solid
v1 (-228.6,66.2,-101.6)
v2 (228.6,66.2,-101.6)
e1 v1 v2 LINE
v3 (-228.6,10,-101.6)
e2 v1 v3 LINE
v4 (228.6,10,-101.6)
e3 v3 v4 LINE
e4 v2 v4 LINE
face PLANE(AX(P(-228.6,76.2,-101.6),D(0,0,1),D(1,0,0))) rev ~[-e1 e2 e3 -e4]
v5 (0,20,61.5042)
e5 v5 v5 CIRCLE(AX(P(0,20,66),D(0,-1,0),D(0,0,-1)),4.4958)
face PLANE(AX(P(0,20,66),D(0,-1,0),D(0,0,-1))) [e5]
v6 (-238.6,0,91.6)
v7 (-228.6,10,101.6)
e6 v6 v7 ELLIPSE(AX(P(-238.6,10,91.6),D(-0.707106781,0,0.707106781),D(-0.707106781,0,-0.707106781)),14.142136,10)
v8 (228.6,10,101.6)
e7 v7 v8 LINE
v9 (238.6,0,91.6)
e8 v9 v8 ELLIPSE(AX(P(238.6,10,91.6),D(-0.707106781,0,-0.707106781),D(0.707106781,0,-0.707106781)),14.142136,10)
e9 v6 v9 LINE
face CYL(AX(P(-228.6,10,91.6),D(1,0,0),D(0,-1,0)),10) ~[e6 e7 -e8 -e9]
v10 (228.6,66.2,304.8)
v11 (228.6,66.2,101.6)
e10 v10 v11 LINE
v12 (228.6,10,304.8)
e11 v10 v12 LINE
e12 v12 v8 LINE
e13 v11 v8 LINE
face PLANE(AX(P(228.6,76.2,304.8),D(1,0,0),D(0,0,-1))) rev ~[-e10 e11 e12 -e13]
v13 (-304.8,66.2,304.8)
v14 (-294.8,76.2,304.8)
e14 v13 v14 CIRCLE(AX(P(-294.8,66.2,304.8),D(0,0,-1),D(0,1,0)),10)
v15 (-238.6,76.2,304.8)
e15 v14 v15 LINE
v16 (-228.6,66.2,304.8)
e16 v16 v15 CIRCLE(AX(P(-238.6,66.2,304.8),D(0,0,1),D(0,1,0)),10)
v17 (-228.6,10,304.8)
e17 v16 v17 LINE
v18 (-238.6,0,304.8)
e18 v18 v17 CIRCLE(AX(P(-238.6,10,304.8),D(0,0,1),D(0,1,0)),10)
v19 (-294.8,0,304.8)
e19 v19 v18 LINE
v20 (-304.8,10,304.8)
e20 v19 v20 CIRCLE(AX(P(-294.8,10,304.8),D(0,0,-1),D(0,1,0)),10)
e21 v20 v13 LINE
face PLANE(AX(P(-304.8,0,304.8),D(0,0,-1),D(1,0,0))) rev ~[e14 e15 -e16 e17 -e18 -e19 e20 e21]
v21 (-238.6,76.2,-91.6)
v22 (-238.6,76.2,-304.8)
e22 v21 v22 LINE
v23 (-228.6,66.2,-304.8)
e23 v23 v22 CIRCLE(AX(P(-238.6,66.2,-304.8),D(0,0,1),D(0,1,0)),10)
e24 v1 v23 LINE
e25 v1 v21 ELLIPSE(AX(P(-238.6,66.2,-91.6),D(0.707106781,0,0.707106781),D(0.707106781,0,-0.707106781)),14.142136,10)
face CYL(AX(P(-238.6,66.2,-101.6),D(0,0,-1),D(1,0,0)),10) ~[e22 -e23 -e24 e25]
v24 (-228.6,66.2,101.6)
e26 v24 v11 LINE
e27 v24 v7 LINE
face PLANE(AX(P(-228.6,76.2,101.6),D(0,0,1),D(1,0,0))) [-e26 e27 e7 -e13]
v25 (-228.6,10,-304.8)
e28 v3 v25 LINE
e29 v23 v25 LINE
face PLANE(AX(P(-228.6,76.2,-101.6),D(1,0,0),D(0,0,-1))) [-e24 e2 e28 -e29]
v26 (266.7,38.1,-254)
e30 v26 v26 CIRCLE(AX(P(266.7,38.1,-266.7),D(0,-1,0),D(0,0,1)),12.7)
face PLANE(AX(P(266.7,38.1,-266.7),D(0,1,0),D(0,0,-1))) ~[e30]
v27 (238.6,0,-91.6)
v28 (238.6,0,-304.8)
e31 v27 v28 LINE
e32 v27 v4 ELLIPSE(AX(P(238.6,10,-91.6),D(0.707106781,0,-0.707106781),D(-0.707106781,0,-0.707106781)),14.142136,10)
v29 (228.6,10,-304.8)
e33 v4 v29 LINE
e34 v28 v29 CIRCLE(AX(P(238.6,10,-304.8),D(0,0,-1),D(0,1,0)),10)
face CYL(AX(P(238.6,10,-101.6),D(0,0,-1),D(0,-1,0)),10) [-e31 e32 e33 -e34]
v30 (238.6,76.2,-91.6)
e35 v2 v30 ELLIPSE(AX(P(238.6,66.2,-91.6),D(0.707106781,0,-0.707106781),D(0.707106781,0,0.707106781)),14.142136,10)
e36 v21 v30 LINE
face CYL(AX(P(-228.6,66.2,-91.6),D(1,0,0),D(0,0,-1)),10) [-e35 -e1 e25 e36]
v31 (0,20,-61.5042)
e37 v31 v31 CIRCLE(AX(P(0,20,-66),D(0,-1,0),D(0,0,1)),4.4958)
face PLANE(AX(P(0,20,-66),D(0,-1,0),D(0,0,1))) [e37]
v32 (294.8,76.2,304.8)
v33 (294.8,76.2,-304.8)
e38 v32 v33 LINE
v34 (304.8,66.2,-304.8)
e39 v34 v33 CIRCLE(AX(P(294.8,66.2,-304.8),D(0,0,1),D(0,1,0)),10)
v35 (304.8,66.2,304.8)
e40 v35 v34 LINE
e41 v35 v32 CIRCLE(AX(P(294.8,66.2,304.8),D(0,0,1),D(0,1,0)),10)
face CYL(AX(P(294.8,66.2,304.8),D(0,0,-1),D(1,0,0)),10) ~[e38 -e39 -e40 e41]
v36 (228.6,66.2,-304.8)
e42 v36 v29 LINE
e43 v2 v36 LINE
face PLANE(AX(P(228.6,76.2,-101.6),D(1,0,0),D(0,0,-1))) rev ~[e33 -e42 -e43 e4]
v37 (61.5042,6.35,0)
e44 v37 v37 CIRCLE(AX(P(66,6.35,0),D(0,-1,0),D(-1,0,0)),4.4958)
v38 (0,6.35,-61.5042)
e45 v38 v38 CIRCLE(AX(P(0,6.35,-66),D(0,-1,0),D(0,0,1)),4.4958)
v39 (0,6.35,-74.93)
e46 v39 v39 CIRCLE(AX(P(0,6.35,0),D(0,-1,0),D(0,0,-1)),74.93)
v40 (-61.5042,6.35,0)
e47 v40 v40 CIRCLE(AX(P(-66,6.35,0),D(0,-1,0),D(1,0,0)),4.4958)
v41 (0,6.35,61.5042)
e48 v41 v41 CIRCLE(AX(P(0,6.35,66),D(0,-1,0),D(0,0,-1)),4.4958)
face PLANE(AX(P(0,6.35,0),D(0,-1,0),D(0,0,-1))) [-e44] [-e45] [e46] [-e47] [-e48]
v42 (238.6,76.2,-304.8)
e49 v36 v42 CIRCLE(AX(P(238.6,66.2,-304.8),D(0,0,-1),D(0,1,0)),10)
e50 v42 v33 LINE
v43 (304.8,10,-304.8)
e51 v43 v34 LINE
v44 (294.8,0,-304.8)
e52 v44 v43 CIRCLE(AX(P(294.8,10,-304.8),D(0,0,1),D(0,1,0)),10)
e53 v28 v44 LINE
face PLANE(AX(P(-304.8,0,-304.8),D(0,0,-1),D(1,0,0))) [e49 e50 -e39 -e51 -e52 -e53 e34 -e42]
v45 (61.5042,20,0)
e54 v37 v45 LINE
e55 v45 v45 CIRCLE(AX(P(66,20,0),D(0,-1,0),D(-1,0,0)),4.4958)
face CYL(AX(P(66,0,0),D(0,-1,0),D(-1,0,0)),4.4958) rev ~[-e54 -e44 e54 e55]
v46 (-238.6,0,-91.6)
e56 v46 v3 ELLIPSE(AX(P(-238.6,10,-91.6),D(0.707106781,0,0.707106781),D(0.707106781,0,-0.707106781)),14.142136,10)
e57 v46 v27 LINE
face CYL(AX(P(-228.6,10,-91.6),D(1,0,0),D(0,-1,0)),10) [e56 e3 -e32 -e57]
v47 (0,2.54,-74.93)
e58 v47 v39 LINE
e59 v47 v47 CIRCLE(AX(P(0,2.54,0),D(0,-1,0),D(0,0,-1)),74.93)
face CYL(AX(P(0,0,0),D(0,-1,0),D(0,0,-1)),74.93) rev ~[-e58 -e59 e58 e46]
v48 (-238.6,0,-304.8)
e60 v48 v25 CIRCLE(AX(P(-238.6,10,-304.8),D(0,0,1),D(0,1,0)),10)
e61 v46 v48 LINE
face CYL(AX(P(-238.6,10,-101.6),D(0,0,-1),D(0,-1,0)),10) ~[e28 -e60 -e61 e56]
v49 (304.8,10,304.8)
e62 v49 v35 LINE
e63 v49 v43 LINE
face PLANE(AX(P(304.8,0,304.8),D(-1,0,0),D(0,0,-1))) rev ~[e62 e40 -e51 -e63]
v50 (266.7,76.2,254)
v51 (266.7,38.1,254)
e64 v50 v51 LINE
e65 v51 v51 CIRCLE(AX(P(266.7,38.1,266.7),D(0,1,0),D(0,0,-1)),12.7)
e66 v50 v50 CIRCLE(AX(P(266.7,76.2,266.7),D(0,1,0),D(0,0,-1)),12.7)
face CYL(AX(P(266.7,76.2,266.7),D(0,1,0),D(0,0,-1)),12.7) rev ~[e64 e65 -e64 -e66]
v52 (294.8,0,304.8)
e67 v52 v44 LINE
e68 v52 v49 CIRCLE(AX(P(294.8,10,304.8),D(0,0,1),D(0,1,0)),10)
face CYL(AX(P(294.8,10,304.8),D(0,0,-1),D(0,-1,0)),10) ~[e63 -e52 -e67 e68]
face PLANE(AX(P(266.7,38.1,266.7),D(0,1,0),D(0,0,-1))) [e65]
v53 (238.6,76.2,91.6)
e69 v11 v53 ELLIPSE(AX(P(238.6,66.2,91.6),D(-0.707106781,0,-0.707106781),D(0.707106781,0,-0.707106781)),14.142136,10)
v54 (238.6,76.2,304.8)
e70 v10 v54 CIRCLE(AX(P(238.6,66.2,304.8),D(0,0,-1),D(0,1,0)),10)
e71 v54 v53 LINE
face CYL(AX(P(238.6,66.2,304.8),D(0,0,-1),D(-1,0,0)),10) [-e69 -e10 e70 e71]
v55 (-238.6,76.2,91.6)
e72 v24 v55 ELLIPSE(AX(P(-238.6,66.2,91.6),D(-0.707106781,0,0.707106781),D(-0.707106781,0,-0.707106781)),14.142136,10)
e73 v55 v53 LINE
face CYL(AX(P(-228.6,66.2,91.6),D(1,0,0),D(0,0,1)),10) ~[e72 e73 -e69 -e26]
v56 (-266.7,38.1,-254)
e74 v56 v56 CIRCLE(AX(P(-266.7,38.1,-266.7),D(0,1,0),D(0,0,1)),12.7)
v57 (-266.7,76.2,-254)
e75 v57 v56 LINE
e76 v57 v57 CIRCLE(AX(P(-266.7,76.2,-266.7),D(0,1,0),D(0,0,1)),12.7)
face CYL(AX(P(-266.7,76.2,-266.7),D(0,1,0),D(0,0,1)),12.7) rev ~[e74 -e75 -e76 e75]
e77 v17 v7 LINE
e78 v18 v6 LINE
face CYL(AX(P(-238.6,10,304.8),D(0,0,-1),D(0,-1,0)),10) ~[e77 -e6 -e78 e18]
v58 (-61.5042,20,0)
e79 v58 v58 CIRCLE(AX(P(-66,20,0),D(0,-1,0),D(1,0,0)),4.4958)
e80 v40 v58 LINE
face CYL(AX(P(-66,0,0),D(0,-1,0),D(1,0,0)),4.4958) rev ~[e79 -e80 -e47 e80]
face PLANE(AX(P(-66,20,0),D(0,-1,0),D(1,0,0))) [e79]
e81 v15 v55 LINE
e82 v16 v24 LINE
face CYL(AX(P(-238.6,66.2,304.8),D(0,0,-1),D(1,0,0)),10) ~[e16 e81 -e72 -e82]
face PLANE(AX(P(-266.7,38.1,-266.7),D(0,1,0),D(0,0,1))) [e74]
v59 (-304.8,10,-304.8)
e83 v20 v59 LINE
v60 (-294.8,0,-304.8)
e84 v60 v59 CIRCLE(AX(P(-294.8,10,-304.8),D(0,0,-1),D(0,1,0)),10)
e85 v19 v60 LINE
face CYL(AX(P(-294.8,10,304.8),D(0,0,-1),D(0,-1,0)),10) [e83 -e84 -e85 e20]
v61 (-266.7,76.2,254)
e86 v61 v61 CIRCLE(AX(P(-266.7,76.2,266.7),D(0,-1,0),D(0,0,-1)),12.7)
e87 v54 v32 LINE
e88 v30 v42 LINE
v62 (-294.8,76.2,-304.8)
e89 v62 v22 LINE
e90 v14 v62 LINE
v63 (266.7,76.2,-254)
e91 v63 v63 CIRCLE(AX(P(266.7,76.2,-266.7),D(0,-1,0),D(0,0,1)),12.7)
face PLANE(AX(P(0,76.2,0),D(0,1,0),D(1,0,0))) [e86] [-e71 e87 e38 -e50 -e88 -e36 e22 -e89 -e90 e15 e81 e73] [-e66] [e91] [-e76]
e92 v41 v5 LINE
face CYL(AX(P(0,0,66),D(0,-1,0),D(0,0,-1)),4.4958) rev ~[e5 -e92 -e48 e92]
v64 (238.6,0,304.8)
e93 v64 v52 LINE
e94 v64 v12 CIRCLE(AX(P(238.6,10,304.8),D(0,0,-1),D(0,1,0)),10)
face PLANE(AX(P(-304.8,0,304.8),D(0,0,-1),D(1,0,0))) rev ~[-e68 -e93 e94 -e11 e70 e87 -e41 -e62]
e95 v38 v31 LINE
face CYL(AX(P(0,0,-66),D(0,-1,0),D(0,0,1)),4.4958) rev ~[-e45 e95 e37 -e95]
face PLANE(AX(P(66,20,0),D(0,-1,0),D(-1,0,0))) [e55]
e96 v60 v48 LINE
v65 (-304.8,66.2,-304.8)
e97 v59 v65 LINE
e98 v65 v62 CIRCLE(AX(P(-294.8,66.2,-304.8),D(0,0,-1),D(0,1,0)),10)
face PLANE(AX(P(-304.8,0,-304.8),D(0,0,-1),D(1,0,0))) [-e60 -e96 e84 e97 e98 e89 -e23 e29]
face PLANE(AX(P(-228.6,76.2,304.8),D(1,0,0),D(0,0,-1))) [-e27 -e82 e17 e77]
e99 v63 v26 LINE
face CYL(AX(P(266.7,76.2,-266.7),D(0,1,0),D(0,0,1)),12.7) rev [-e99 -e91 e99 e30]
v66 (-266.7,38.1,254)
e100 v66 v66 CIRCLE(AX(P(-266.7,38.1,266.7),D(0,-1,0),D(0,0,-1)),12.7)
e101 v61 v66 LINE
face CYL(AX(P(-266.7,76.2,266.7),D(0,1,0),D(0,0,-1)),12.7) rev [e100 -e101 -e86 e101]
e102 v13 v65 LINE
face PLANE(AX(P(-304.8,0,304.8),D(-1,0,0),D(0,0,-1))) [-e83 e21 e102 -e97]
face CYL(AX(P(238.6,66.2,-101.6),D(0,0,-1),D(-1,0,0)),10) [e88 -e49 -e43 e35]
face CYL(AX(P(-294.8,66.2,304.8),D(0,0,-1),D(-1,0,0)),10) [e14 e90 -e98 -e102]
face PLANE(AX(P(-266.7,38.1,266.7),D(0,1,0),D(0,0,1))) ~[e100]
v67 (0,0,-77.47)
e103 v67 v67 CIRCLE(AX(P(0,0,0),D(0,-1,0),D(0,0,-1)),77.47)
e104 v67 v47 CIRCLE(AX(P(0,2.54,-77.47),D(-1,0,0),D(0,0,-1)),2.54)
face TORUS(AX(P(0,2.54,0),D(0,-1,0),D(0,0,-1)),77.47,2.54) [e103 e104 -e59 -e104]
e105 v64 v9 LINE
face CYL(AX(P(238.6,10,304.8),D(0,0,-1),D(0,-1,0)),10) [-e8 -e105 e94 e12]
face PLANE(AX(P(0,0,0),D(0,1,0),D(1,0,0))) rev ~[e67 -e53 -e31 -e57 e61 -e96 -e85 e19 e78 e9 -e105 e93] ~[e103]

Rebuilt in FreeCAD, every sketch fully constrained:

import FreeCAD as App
import Part
import Sketcher
from FreeCAD import Vector
Q = App.Units.Quantity


def edges_at(feature, points):
    """Names of the edges that pass closest to the given points."""
    edges = feature.Shape.Edges
    near = lambda p: min(range(len(edges)), key=lambda i: edges[i].distToShape(Part.Vertex(*p))[0])
    return sorted({f"Edge{near(p) + 1}" for p in points})


def add_polygon(sketch, points):
    """Adds a closed chain of lines whose ends are joined by coincident constraints."""
    first, n = sketch.GeometryCount, len(points)
    for a, b in zip(points, points[1:] + points[:1]):
        sketch.addGeometry(Part.LineSegment(App.Vector(*a, 0), App.Vector(*b, 0)), False)
    for i in range(n):
        sketch.addConstraint(Sketcher.Constraint("Coincident", first + i, 2, first + (i + 1) % n, 1))

doc = App.newDocument("Part")
body = doc.addObject("PartDesign::Body", "Body")

# Sketch on XZ plane
sketch1 = body.newObject("Sketcher::SketchObject", "Sketch")
sketch1.AttachmentSupport = (doc.getObject("XZ_Plane"), [""])
sketch1.MapMode = "FlatFace"
add_polygon(sketch1, [(-304.8, -304.8), (-304.8, 304.8), (304.8, 304.8), (304.8, -304.8)])  # lines 0-3
sketch1.addConstraint([
    Sketcher.Constraint("Vertical", 0),
    Sketcher.Constraint("Horizontal", 1),
    Sketcher.Constraint("Vertical", 2),
    Sketcher.Constraint("Horizontal", 3),
    Sketcher.Constraint("Symmetric", 0, 2, 2, 2, -1, 1),
    Sketcher.Constraint("Equal", 3, 0),
    Sketcher.Constraint("DistanceX", 1, 1, 1, 2, Q("24 in")),
])
pad1 = body.newObject("PartDesign::Pad", "Pad")
pad1.Profile = sketch1
pad1.Length = Q("3 in")
pad1.Reversed = True

# Sketch on XZ plane
sketch2 = body.newObject("Sketcher::SketchObject", "Sketch001")
sketch2.AttachmentSupport = (doc.getObject("XZ_Plane"), [""])
sketch2.MapMode = "FlatFace"
sketch2.AttachmentOffset = App.Placement(Vector(0, 0, -3 * 25.4), App.Rotation())
add_polygon(sketch2, [(-228.6, 101.6), (-228.6, 304.8), (228.6, 304.8), (228.6, 101.6)])  # lines 0-3
add_polygon(sketch2, [(-228.6, -304.8), (-228.6, -101.6), (228.6, -101.6), (228.6, -304.8)])  # lines 4-7
sketch2.addConstraint([
    Sketcher.Constraint("Vertical", 0),
    Sketcher.Constraint("Horizontal", 1),
    Sketcher.Constraint("Vertical", 2),
    Sketcher.Constraint("Horizontal", 3),
    Sketcher.Constraint("Vertical", 4),
    Sketcher.Constraint("Horizontal", 5),
    Sketcher.Constraint("Vertical", 6),
    Sketcher.Constraint("Horizontal", 7),
    Sketcher.Constraint("Symmetric", 2, 2, 4, 2, -1, 1),
    Sketcher.Constraint("Symmetric", 0, 2, 6, 2, -1, 1),
    Sketcher.Constraint("Vertical", 3, 2, 4, 2),
    Sketcher.Constraint("DistanceX", 1, 1, 1, 2, Q("18 in")),
    Sketcher.Constraint("DistanceY", 0, 1, 0, 2, Q("8 in")),
    Sketcher.Constraint("DistanceY", -1, 1, 0, 2, Q("12 in")),
])
pocket1 = body.newObject("PartDesign::Pocket", "Pocket")
pocket1.Profile = sketch2
pocket1.Length = Q("3 in")
pocket1.Reversed = True

# Sketch on XZ plane
sketch3 = body.newObject("Sketcher::SketchObject", "Sketch002")
sketch3.AttachmentSupport = (doc.getObject("XZ_Plane"), [""])
sketch3.MapMode = "FlatFace"
sketch3.AttachmentOffset = App.Placement(Vector(0, 0, -3 * 25.4), App.Rotation())
sketch3.addGeometry(Part.Circle(Vector(-266.7, -266.7, 0), Vector(0, 0, 1), 12.7), False)
sketch3.addConstraint([
    Sketcher.Constraint("Diameter", 0, Q("1 in")),
    Sketcher.Constraint("DistanceX", 0, 3, -1, 1, Q("10.5 in")),
    Sketcher.Constraint("DistanceY", 0, 3, -1, 1, Q("10.5 in")),
])
pocket2 = body.newObject("PartDesign::Pocket", "Pocket001")
pocket2.Profile = sketch3
pocket2.Length = Q("1.5 in")
pocket2.Reversed = True
doc.recompute()

mirrored = body.newObject("PartDesign::Mirrored", "Mirrored")
mirrored.Originals = [pocket2]
mirrored.MirrorPlane = (doc.getObject("YZ_Plane"), [""])
body.Tip = mirrored
doc.recompute()

mirrored2 = body.newObject("PartDesign::Mirrored", "Mirrored001")
mirrored2.Originals = [pocket2]
mirrored2.MirrorPlane = (doc.getObject("XY_Plane"), [""])
body.Tip = mirrored2

# Sketch on XZ plane
sketch4 = body.newObject("Sketcher::SketchObject", "Sketch003")
sketch4.AttachmentSupport = (doc.getObject("XZ_Plane"), [""])
sketch4.MapMode = "FlatFace"
sketch4.AttachmentOffset = App.Placement(Vector(0, 0, -3 * 25.4), App.Rotation())
sketch4.addGeometry(Part.Circle(Vector(266.7, 266.7, 0), Vector(0, 0, 1), 12.7), False)
sketch4.addConstraint([
    Sketcher.Constraint("Diameter", 0, Q("1 in")),
    Sketcher.Constraint("DistanceX", -1, 1, 0, 3, Q("10.5 in")),
    Sketcher.Constraint("DistanceY", -1, 1, 0, 3, Q("10.5 in")),
])
pocket3 = body.newObject("PartDesign::Pocket", "Pocket002")
pocket3.Profile = sketch4
pocket3.Length = Q("1.5 in")
pocket3.Reversed = True

# Sketch on XZ plane
sketch5 = body.newObject("Sketcher::SketchObject", "Sketch004")
sketch5.AttachmentSupport = (doc.getObject("XZ_Plane"), [""])
sketch5.MapMode = "FlatFace"
sketch5.addGeometry(Part.Circle(Vector(0, 0, 0), Vector(0, 0, 1), 74.93), False)
sketch5.addConstraint([
    Sketcher.Constraint("Coincident", 0, 3, -1, 1),
    Sketcher.Constraint("Diameter", 0, Q("5.9 in")),
])
pocket4 = body.newObject("PartDesign::Pocket", "Pocket003")
pocket4.Profile = sketch5
pocket4.Length = Q("0.25 in")
doc.recompute()

fillet = body.newObject("PartDesign::Fillet", "Fillet")
fillet.Base = (pocket4, edges_at(pocket4, [(0, 0, 74.93)]))
fillet.Radius = Q("0.1 in")

# Sketch on XZ plane
sketch6 = body.newObject("Sketcher::SketchObject", "Sketch005")
sketch6.AttachmentSupport = (doc.getObject("XZ_Plane"), [""])
sketch6.MapMode = "FlatFace"
sketch6.addGeometry(Part.Circle(Vector(0, 66, 0), Vector(0, 0, 1), 4.4958), False)
sketch6.addConstraint([
    Sketcher.Constraint("PointOnObject", 0, 3, -2),
    Sketcher.Constraint("Diameter", 0, Q("0.354 in")),
    Sketcher.Constraint("DistanceY", -1, 1, 0, 3, Q("66 mm")),
])
pocket5 = body.newObject("PartDesign::Pocket", "Pocket004")
pocket5.Profile = sketch6
pocket5.Length = 20
doc.recompute()

polarpattern = body.newObject("PartDesign::PolarPattern", "PolarPattern")
polarpattern.Originals = [pocket5]
polarpattern.Axis = (doc.getObject("Y_Axis"), [""])
polarpattern.Angle = 360
polarpattern.Occurrences = 4
body.Tip = polarpattern
doc.recompute()

fillet2 = body.newObject("PartDesign::Fillet", "Fillet001")
fillet2.Base = (polarpattern, edges_at(polarpattern, [
    (-304.8, 76.2, 0),
    (-228.6, 0, 203.2),
    (0, 0, 101.6),
    (228.6, 0, 203.2),
    (-228.6, 76.2, 203.2),
    (228.6, 76.2, 203.2),
    (0, 76.2, 101.6),
    (-228.6, 0, -203.2),
    (228.6, 0, -203.2),
    (0, 0, -101.6),
    (-228.6, 76.2, -203.2),
    (0, 76.2, -101.6),
    (228.6, 76.2, -203.2),
    (304.8, 76.2, 0),
    (-304.8, 0, 0),
    (304.8, 0, 0),
]))
fillet2.Radius = 10

doc.recompute()
